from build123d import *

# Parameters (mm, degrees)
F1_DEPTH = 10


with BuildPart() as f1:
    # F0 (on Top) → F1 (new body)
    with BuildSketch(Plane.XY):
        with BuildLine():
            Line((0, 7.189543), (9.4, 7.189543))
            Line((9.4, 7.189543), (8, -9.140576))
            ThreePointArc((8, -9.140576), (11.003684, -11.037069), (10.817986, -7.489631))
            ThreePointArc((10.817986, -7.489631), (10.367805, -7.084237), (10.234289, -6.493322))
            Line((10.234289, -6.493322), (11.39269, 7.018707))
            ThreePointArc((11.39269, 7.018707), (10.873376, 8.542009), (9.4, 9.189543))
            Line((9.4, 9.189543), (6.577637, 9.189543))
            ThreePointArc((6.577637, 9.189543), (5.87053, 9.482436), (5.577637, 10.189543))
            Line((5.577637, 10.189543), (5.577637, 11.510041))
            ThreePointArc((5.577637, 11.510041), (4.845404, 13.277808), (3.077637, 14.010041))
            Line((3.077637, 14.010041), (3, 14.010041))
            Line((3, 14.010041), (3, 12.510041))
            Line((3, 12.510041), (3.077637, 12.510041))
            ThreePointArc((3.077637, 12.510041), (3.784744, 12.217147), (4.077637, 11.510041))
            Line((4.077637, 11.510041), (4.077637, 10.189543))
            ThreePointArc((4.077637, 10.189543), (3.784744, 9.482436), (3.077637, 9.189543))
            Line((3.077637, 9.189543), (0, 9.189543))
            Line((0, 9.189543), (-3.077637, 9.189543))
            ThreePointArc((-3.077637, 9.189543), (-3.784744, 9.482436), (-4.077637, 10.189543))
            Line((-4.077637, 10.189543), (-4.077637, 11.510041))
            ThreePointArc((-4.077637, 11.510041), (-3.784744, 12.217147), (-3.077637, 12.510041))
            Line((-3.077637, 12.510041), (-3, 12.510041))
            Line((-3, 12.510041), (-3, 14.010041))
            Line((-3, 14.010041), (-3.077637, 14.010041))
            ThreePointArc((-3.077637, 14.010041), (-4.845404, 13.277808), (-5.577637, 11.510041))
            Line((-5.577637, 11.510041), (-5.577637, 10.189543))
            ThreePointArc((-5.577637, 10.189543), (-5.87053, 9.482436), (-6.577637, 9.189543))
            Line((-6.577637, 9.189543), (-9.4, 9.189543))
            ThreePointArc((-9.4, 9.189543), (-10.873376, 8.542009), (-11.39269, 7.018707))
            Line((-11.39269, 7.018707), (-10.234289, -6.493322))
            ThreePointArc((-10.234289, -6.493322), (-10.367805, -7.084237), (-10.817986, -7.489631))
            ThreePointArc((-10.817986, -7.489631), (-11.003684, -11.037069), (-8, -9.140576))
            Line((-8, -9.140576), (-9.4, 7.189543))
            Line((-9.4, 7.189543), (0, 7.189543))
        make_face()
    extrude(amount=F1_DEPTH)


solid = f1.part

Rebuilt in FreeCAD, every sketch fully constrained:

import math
import FreeCAD as App
import Part
import Sketcher
from FreeCAD import Vector
Q = App.Units.Quantity

doc = App.newDocument("Part")
params = doc.addObject("Spreadsheet::Sheet", "Params")
for row, (alias, value) in enumerate([
    ("sketch1_radius", "2 mm"),
    ("sketch1_radius2", "0.999998 mm"),
    ("sketch1_radius3", "2.5 mm"),
    ("sketch1_width", "18.8 mm"),
    ("pad1_length", "10 mm"),
], start=1):
    params.set(f"A{row}", alias)
    params.set(f"B{row}", "=" + value)
    params.setAlias(f"B{row}", alias)

body = doc.addObject("PartDesign::Body", "Body")

sketch1 = body.newObject("Sketcher::SketchObject", "Sketch")
sketch1.AttachmentSupport = (doc.getObject("XY_Plane"), [""])
sketch1.MapMode = "FlatFace"
sketch1.addGeometry(Part.LineSegment(Vector(9.4, 7.19, 0), Vector(8, -9.14, 0)), False)
sketch1.addGeometry(Part.ArcOfCircle(Part.Circle(Vector(9.99, -9.31, 0), Vector(0, 0, 1), 2), math.radians(175), math.radians(426)), False)
sketch1.addGeometry(Part.ArcOfCircle(Part.Circle(Vector(11.23, -6.58, 0), Vector(0, 0, 1), 1), math.radians(175), math.radians(246)), False)
sketch1.addGeometry(Part.LineSegment(Vector(10.23, -6.49, 0), Vector(11.39, 7.02, 0)), False)
sketch1.addGeometry(Part.ArcOfCircle(Part.Circle(Vector(9.4, 7.19, 0), Vector(0, 0, 1), 2), math.radians(-5), math.radians(90)), False)
sketch1.addGeometry(Part.LineSegment(Vector(9.4, 9.19, 0), Vector(6.58, 9.19, 0)), False)
sketch1.addGeometry(Part.ArcOfCircle(Part.Circle(Vector(6.58, 10.19, 0), Vector(0, 0, 1), 1), math.radians(180), math.radians(270)), False)
sketch1.addGeometry(Part.LineSegment(Vector(5.58, 10.19, 0), Vector(5.58, 11.51, 0)), False)
sketch1.addGeometry(Part.ArcOfCircle(Part.Circle(Vector(3.08, 11.51, 0), Vector(0, 0, 1), 2.5), math.radians(0), math.radians(90)), False)
sketch1.addGeometry(Part.LineSegment(Vector(3.08, 14.01, 0), Vector(3, 14.01, 0)), False)
sketch1.addGeometry(Part.LineSegment(Vector(3, 14.01, 0), Vector(3, 12.51, 0)), False)
sketch1.addGeometry(Part.LineSegment(Vector(3, 12.51, 0), Vector(3.08, 12.51, 0)), False)
sketch1.addGeometry(Part.ArcOfCircle(Part.Circle(Vector(3.08, 11.51, 0), Vector(0, 0, 1), 1), math.radians(0), math.radians(90)), False)
sketch1.addGeometry(Part.LineSegment(Vector(4.08, 11.51, 0), Vector(4.08, 10.19, 0)), False)
sketch1.addGeometry(Part.ArcOfCircle(Part.Circle(Vector(3.08, 10.19, 0), Vector(0, 0, 1), 1), math.radians(-90), math.radians(0)), False)
sketch1.addGeometry(Part.LineSegment(Vector(3.08, 9.19, 0), Vector(-3.08, 9.19, 0)), False)
sketch1.addGeometry(Part.ArcOfCircle(Part.Circle(Vector(-3.08, 10.19, 0), Vector(0, 0, 1), 1), math.radians(180), math.radians(270)), False)
sketch1.addGeometry(Part.LineSegment(Vector(-4.08, 10.19, 0), Vector(-4.08, 11.51, 0)), False)
sketch1.addGeometry(Part.ArcOfCircle(Part.Circle(Vector(-3.08, 11.51, 0), Vector(0, 0, 1), 1), math.radians(90), math.radians(180)), False)
sketch1.addGeometry(Part.LineSegment(Vector(-3.08, 12.51, 0), Vector(-3, 12.51, 0)), False)
sketch1.addGeometry(Part.LineSegment(Vector(-3, 12.51, 0), Vector(-3, 14.01, 0)), False)
sketch1.addGeometry(Part.LineSegment(Vector(-3, 14.01, 0), Vector(-3.08, 14.01, 0)), False)
sketch1.addGeometry(Part.ArcOfCircle(Part.Circle(Vector(-3.08, 11.51, 0), Vector(0, 0, 1), 2.5), math.radians(90), math.radians(180)), False)
sketch1.addGeometry(Part.LineSegment(Vector(-5.58, 11.51, 0), Vector(-5.58, 10.19, 0)), False)
sketch1.addGeometry(Part.ArcOfCircle(Part.Circle(Vector(-6.58, 10.19, 0), Vector(0, 0, 1), 1), math.radians(-90), math.radians(0)), False)
sketch1.addGeometry(Part.LineSegment(Vector(-6.58, 9.19, 0), Vector(-9.4, 9.19, 0)), False)
sketch1.addGeometry(Part.ArcOfCircle(Part.Circle(Vector(-9.4, 7.19, 0), Vector(0, 0, 1), 2), math.radians(90), math.radians(185)), False)
sketch1.addGeometry(Part.LineSegment(Vector(-11.39, 7.02, 0), Vector(-10.23, -6.49, 0)), False)
sketch1.addGeometry(Part.ArcOfCircle(Part.Circle(Vector(-11.23, -6.58, 0), Vector(0, 0, 1), 1), math.radians(-66), math.radians(5)), False)
sketch1.addGeometry(Part.ArcOfCircle(Part.Circle(Vector(-9.99, -9.31, 0), Vector(0, 0, 1), 2), math.radians(114), math.radians(365)), False)
sketch1.addGeometry(Part.LineSegment(Vector(-8, -9.14, 0), Vector(-9.4, 7.19, 0)), False)
sketch1.addGeometry(Part.LineSegment(Vector(-9.4, 7.19, 0), Vector(9.4, 7.19, 0)), False)
sketch1.addConstraint(Sketcher.Constraint("Tangent", 0, 2, 1, 1))
sketch1.addConstraint(Sketcher.Constraint("Tangent", 1, 2, 2, 2))
sketch1.addConstraint(Sketcher.Constraint("Coincident", 2, 1, 3, 1))
sketch1.addConstraint(Sketcher.Constraint("Tangent", 3, 2, 4, 1))
sketch1.addConstraint(Sketcher.Constraint("Tangent", 4, 2, 5, 1))
sketch1.addConstraint(Sketcher.Constraint("Tangent", 5, 2, 6, 2))
sketch1.addConstraint(Sketcher.Constraint("Tangent", 6, 1, 7, 1))
sketch1.addConstraint(Sketcher.Constraint("Tangent", 7, 2, 8, 1))
sketch1.addConstraint(Sketcher.Constraint("Tangent", 8, 2, 9, 1))
sketch1.addConstraint(Sketcher.Constraint("Coincident", 9, 2, 10, 1))
sketch1.addConstraint(Sketcher.Constraint("Coincident", 10, 2, 11, 1))
sketch1.addConstraint(Sketcher.Constraint("Tangent", 11, 2, 12, 2))
sketch1.addConstraint(Sketcher.Constraint("Tangent", 12, 1, 13, 1))
sketch1.addConstraint(Sketcher.Constraint("Tangent", 13, 2, 14, 2))
sketch1.addConstraint(Sketcher.Constraint("Tangent", 14, 1, 15, 1))
sketch1.addConstraint(Sketcher.Constraint("Tangent", 15, 2, 16, 2))
sketch1.addConstraint(Sketcher.Constraint("Tangent", 16, 1, 17, 1))
sketch1.addConstraint(Sketcher.Constraint("Tangent", 17, 2, 18, 2))
sketch1.addConstraint(Sketcher.Constraint("Tangent", 18, 1, 19, 1))
sketch1.addConstraint(Sketcher.Constraint("Coincident", 19, 2, 20, 1))
sketch1.addConstraint(Sketcher.Constraint("Coincident", 20, 2, 21, 1))
sketch1.addConstraint(Sketcher.Constraint("Tangent", 21, 2, 22, 1))
sketch1.addConstraint(Sketcher.Constraint("Tangent", 22, 2, 23, 1))
sketch1.addConstraint(Sketcher.Constraint("Tangent", 23, 2, 24, 2))
sketch1.addConstraint(Sketcher.Constraint("Tangent", 24, 1, 25, 1))
sketch1.addConstraint(Sketcher.Constraint("Tangent", 25, 2, 26, 1))
sketch1.addConstraint(Sketcher.Constraint("Tangent", 26, 2, 27, 1))
sketch1.addConstraint(Sketcher.Constraint("Coincident", 27, 2, 28, 2))
sketch1.addConstraint(Sketcher.Constraint("Tangent", 28, 1, 29, 1))
sketch1.addConstraint(Sketcher.Constraint("Tangent", 29, 2, 30, 1))
sketch1.addConstraint(Sketcher.Constraint("Coincident", 30, 2, 31, 1))
sketch1.addConstraint(Sketcher.Constraint("Coincident", 31, 2, 0, 1))
sketch1.addConstraint(Sketcher.Constraint("Horizontal", 5))
sketch1.addConstraint(Sketcher.Constraint("Vertical", 7))
sketch1.addConstraint(Sketcher.Constraint("Horizontal", 9))
sketch1.addConstraint(Sketcher.Constraint("Vertical", 10))
sketch1.addConstraint(Sketcher.Constraint("Horizontal", 11))
sketch1.addConstraint(Sketcher.Constraint("Vertical", 13))
sketch1.addConstraint(Sketcher.Constraint("Horizontal", 15))
sketch1.addConstraint(Sketcher.Constraint("Vertical", 17))
sketch1.addConstraint(Sketcher.Constraint("Horizontal", 19))
sketch1.addConstraint(Sketcher.Constraint("Vertical", 20))
sketch1.addConstraint(Sketcher.Constraint("Horizontal", 21))
sketch1.addConstraint(Sketcher.Constraint("Vertical", 23))
sketch1.addConstraint(Sketcher.Constraint("Horizontal", 25))
sketch1.addConstraint(Sketcher.Constraint("Horizontal", 31))
sketch1.addConstraint(Sketcher.Constraint("Coincident", 12, 3, 8, 3))
sketch1.addConstraint(Sketcher.Constraint("Coincident", 22, 3, 18, 3))
sketch1.addConstraint(Sketcher.Constraint("Coincident", 30, 2, 26, 3))
sketch1.addConstraint(Sketcher.Constraint("Coincident", 31, 2, 4, 3))
sketch1.addConstraint(Sketcher.Constraint("Equal", 1, 4))
sketch1.addConstraint(Sketcher.Constraint("Equal", 2, 6))
sketch1.addConstraint(Sketcher.Constraint("Equal", 6, 12))
sketch1.addConstraint(Sketcher.Constraint("Equal", 12, 14))
sketch1.addConstraint(Sketcher.Constraint("Equal", 14, 16))
sketch1.addConstraint(Sketcher.Constraint("Equal", 16, 18))
sketch1.addConstraint(Sketcher.Constraint("Equal", 8, 22))
sketch1.addConstraint(Sketcher.Constraint("Equal", 18, 24))
sketch1.addConstraint(Sketcher.Constraint("Equal", 4, 26))
sketch1.addConstraint(Sketcher.Constraint("Equal", 24, 28))
sketch1.addConstraint(Sketcher.Constraint("Equal", 26, 29))
sketch1.addConstraint(Sketcher.Constraint("Symmetric", 8, 3, 18, 3, -2))
sketch1.addConstraint(Sketcher.Constraint("Symmetric", 2, 3, 28, 3, -2))
sketch1.addConstraint(Sketcher.Constraint("Symmetric", 0, 2, 29, 2, -2))
sketch1.addConstraint(Sketcher.Constraint("Parallel", 0, 3))
sketch1.addConstraint(Sketcher.Constraint("Horizontal", 6, 3, 14, 3))
sketch1.addConstraint(Sketcher.Constraint("Horizontal", 2, 1, 27, 2))
sketch1.addConstraint(Sketcher.Constraint("Equal", 11, 19))
sketch1.addConstraint(Sketcher.Constraint("Radius", 1, Q("2 mm")))
sketch1.addConstraint(Sketcher.Constraint("Radius", 2, Q("0.999998 mm")))
sketch1.addConstraint(Sketcher.Constraint("Radius", 8, Q("2.5 mm")))
sketch1.addConstraint(Sketcher.Constraint("DistanceX", 31, 1, 31, 2, Q("18.8 mm")))
sketch1.addConstraint(Sketcher.Constraint("DistanceX", -1, 1, 0, 2, Q("8 mm")))
sketch1.addConstraint(Sketcher.Constraint("DistanceX", -1, 1, 9, 2, Q("3 mm")))
sketch1.addConstraint(Sketcher.Constraint("DistanceY", 6, 3, 8, 3, Q("1.320499 mm")))
sketch1.addConstraint(Sketcher.Constraint("DistanceX", 1, 3, 2, 1, Q("0.241599 mm")))
sketch1.addConstraint(Sketcher.Constraint("Distance", 0, Q("16.390021 mm")))
sketch1.addConstraint(Sketcher.Constraint("DistanceX", 5, 2, 5, 1, Q("2.822363 mm")))
sketch1.addConstraint(Sketcher.Constraint("DistanceY", 2, 3, -1, 1, Q("6.578742 mm")))
sketch1.setExpression("Constraints[68]", "Params.sketch1_radius")
sketch1.setExpression("Constraints[69]", "Params.sketch1_radius2")
sketch1.setExpression("Constraints[70]", "Params.sketch1_radius3")
sketch1.setExpression("Constraints[71]", "Params.sketch1_width")
pad1 = body.newObject("PartDesign::Pad", "Pad")
pad1.Profile = sketch1
pad1.setExpression("Length", "Params.pad1_length")

doc.recompute()
